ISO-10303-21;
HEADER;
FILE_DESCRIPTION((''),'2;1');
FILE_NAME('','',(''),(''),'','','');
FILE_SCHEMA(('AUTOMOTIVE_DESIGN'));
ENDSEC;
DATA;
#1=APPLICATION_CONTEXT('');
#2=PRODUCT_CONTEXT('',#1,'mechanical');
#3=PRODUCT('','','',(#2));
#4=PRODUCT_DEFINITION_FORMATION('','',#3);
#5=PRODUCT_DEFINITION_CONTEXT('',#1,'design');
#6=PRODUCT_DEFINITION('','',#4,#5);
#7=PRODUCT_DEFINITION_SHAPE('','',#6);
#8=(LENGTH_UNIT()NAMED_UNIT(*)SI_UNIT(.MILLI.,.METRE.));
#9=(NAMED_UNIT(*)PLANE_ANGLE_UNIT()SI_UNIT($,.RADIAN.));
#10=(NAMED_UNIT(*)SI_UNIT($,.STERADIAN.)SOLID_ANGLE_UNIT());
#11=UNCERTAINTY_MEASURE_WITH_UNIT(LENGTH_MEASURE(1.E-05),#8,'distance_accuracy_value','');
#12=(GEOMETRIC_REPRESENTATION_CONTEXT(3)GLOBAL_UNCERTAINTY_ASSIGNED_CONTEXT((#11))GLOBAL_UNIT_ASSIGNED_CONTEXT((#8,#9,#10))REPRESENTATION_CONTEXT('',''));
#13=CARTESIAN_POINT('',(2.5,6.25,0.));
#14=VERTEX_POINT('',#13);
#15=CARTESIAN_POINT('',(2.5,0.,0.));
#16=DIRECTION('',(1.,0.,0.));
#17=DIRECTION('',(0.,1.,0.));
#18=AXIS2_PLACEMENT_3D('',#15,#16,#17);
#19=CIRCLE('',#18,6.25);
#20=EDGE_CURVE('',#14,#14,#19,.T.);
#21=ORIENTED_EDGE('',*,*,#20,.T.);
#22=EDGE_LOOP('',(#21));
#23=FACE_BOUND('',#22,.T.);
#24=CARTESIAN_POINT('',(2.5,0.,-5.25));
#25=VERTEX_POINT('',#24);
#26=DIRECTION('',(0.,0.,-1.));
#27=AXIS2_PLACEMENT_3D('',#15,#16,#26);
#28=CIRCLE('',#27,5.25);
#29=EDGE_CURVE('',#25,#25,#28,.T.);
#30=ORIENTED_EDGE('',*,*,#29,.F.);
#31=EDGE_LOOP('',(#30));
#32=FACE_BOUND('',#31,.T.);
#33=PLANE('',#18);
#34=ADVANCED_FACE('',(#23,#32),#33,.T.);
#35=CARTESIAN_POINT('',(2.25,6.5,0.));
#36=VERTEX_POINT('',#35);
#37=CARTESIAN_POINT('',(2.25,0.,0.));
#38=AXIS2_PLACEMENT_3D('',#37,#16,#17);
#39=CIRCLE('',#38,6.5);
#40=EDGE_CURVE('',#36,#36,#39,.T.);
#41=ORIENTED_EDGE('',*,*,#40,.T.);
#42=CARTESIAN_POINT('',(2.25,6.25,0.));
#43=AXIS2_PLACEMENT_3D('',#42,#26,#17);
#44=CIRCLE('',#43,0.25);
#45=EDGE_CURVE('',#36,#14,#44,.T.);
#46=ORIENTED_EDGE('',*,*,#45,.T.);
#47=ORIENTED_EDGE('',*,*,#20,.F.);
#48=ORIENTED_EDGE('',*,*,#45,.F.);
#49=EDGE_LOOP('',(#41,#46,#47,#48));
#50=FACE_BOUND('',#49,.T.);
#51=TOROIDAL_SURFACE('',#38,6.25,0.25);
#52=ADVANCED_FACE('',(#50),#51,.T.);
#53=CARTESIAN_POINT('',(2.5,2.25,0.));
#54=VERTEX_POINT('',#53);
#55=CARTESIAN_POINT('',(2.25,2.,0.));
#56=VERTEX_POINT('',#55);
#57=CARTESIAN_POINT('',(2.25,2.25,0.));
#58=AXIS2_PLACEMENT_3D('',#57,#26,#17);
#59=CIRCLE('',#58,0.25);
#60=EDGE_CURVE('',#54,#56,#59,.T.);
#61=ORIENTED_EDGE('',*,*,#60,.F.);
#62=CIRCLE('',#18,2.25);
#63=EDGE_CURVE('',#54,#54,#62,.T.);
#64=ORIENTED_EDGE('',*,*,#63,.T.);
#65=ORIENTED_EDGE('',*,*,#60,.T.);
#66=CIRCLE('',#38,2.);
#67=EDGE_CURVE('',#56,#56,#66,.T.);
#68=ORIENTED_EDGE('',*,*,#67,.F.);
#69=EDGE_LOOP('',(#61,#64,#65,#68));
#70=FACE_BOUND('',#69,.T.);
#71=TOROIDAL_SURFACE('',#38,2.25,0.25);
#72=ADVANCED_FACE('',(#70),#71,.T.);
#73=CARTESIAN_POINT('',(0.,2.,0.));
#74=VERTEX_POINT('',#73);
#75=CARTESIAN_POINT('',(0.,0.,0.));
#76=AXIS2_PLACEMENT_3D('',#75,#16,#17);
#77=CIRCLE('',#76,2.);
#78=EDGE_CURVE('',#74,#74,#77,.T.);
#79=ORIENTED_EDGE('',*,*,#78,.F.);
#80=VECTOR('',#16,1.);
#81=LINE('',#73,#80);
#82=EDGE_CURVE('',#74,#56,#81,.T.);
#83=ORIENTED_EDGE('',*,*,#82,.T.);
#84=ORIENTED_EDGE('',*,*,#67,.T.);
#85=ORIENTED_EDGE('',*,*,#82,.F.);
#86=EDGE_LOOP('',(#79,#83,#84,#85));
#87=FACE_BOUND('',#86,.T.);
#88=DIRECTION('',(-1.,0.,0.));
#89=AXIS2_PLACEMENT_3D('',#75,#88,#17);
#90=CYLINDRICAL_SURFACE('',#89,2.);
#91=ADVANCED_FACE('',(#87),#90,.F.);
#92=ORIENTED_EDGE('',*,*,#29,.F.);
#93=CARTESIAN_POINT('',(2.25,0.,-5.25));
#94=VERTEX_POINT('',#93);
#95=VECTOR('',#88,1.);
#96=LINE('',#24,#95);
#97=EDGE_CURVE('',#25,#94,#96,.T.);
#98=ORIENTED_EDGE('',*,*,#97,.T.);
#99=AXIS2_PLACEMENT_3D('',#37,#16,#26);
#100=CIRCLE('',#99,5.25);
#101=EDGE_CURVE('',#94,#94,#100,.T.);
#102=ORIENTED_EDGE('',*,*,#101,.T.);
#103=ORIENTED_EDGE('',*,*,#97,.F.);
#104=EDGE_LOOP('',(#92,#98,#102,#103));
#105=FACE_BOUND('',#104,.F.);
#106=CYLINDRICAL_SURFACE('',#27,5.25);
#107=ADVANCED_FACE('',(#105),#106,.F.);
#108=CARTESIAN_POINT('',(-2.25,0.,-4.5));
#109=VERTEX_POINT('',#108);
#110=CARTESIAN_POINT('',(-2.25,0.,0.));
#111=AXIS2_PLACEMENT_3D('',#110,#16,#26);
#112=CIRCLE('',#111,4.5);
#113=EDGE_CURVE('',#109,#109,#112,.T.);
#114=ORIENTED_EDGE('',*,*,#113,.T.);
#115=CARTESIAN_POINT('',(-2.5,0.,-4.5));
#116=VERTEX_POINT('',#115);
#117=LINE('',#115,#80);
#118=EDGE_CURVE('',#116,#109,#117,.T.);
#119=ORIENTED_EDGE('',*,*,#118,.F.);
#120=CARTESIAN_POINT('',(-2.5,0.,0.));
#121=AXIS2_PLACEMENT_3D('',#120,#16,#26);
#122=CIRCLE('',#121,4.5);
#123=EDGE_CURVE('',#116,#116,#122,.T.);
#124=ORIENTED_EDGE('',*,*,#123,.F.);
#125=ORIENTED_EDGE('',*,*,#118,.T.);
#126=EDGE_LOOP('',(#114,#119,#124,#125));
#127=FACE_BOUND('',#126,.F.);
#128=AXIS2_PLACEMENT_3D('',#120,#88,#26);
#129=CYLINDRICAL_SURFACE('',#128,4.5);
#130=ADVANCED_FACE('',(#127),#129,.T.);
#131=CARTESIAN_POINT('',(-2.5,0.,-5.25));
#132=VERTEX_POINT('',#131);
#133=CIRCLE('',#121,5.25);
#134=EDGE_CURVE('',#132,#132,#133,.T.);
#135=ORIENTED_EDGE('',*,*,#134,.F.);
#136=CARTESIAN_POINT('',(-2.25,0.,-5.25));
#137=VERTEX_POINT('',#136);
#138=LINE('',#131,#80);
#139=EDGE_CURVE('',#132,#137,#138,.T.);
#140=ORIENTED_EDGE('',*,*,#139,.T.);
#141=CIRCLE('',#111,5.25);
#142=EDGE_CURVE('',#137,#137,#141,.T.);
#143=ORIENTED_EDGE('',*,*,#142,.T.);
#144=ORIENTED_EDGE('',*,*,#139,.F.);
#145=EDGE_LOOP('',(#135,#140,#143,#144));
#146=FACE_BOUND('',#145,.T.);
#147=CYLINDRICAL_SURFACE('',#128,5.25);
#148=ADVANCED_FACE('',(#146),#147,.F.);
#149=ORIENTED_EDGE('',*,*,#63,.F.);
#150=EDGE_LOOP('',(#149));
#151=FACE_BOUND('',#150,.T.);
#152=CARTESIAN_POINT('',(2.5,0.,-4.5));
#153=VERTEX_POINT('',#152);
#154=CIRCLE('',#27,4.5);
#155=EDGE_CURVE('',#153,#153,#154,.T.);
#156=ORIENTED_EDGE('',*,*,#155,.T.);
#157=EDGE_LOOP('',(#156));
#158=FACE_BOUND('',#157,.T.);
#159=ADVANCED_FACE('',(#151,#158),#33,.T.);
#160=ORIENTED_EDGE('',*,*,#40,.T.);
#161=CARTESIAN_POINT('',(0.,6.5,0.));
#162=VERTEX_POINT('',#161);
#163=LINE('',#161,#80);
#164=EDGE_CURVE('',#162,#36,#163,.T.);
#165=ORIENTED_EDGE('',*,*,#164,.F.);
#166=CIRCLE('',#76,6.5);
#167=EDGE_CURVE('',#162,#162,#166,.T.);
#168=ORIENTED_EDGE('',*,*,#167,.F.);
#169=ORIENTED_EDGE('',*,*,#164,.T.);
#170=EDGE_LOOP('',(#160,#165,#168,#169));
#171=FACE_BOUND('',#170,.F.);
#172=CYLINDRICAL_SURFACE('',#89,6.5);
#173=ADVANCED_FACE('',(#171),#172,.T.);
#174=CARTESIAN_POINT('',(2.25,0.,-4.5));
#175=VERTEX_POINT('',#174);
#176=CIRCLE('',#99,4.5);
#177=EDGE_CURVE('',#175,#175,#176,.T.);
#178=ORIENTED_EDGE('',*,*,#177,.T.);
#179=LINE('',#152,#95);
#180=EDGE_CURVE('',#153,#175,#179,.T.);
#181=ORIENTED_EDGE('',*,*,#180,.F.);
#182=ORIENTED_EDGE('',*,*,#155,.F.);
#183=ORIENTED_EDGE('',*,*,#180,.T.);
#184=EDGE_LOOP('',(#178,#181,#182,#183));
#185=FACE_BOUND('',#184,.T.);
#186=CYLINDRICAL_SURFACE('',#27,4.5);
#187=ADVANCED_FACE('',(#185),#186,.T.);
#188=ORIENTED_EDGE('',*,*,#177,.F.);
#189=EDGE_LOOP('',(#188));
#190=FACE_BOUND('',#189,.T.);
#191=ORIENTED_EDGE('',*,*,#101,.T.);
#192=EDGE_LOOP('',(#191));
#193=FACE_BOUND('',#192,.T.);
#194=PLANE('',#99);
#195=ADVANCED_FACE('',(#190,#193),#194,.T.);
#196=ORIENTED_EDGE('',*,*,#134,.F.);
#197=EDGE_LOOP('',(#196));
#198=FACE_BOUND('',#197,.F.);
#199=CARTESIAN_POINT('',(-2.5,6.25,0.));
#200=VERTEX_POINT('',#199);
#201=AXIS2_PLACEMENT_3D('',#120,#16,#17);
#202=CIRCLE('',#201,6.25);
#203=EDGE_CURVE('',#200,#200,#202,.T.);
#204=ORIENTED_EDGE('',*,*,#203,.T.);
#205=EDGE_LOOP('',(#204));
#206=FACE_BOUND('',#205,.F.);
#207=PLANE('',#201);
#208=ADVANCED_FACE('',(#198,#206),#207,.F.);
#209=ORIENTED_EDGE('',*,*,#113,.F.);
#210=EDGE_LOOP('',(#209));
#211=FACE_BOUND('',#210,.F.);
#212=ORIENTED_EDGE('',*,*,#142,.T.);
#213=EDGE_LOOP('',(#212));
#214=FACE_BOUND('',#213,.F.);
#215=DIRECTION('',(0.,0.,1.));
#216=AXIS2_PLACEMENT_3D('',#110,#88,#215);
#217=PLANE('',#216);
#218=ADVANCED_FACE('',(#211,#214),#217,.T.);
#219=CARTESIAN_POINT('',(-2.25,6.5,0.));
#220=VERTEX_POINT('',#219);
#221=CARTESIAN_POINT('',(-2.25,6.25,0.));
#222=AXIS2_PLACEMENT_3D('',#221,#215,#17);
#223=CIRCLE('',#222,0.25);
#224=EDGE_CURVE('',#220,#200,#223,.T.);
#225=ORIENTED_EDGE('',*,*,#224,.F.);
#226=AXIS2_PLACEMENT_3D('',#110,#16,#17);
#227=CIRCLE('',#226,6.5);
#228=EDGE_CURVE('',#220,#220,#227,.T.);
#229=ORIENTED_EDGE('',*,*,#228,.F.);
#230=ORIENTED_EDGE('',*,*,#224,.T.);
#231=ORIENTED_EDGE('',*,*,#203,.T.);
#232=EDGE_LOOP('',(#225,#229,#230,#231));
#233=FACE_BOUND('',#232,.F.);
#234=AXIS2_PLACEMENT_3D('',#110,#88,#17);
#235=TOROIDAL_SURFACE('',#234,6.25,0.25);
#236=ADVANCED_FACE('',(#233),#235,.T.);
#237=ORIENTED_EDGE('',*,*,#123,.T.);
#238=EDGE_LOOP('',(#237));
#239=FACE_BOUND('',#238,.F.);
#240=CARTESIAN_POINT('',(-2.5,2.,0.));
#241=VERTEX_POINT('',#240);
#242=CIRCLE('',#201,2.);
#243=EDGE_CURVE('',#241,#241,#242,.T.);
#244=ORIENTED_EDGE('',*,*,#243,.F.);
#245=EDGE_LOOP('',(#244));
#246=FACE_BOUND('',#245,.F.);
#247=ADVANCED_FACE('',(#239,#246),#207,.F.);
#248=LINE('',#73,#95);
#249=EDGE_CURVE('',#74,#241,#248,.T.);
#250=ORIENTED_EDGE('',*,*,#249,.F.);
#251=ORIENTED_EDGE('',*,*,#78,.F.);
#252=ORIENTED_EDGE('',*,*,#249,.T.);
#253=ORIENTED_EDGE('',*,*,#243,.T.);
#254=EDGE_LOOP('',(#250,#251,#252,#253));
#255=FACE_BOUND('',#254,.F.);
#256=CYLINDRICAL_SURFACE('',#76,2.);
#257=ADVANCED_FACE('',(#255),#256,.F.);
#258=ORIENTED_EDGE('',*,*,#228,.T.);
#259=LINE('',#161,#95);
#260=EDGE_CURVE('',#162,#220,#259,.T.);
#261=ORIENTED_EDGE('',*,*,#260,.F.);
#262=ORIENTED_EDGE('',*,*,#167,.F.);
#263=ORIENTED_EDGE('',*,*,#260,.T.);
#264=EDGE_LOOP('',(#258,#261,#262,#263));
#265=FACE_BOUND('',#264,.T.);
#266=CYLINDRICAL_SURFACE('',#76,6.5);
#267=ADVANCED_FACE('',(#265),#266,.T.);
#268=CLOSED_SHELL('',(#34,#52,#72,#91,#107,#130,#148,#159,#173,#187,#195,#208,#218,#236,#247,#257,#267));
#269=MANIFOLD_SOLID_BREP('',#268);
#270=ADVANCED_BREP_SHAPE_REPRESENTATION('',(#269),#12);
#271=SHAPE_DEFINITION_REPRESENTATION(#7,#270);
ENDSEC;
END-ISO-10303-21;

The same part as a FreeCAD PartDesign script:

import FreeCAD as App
import Part
import Sketcher

V = App.Vector
Q = App.Units.Quantity


def edges_at(feature, points):
    """Names of the edges that pass closest to the given points."""
    edges = feature.Shape.Edges
    near = lambda p: min(range(len(edges)), key=lambda i: edges[i].distToShape(Part.Vertex(*p))[0])
    return sorted({f"Edge{near(p) + 1}" for p in points})

doc = App.newDocument("Part")
body = doc.addObject("PartDesign::Body", "Body")

sketch1 = body.newObject("Sketcher::SketchObject", "Sketch")
sketch1.AttachmentSupport = (doc.getObject("YZ_Plane"), [""])
sketch1.MapMode = "FlatFace"
sketch1.addGeometry([
    Part.Circle(V(0, 0, 0), V(0, 0, 1), 6.5),
    Part.Circle(V(0, 0, 0), V(0, 0, 1), 2),
], False)
sketch1.addConstraint([
    Sketcher.Constraint("Coincident", 0, 3, -1, 1),
    Sketcher.Constraint("Coincident", 1, 3, -1, 1),
    Sketcher.Constraint("Diameter", 0, Q("13 mm")),
    Sketcher.Constraint("Diameter", 1, Q("4 mm")),
])
pad1 = body.newObject("PartDesign::Pad", "Pad")
pad1.Profile = sketch1
pad1.Length = 5
pad1.Midplane = True
doc.recompute()

fillet = body.newObject("PartDesign::Fillet", "Fillet")
fillet.Base = (pad1, edges_at(pad1, [(2.5, -6.5, 0), (-2.5, -6.5, 0)]))
fillet.Radius = 0.25
doc.recompute()

fillet2 = body.newObject("PartDesign::Fillet", "Fillet001")
fillet2.Base = (fillet, edges_at(fillet, [(2.5, -2, 0)]))
fillet2.Radius = 0.25

sketch2 = body.newObject("Sketcher::SketchObject", "Sketch001")
sketch2.AttachmentSupport = (doc.getObject("YZ_Plane"), [""])
sketch2.MapMode = "FlatFace"
sketch2.AttachmentOffset = App.Placement(V(0, 0, 2.5), App.Rotation())
sketch2.addGeometry([
    Part.Circle(V(0, 0, 0), V(0, 0, 1), 5.2),
    Part.Circle(V(0, 0, 0), V(0, 0, 1), 4.5),
], False)
sketch2.addConstraint([
    Sketcher.Constraint("Coincident", 0, 3, -1, 1),
    Sketcher.Constraint("Coincident", 1, 3, -1, 1),
    Sketcher.Constraint("Diameter", 1, Q("9 mm")),
    Sketcher.Constraint("Diameter", 0, Q("10.5 mm")),
])
pocket1 = body.newObject("PartDesign::Pocket", "Pocket")
pocket1.Profile = sketch2
pocket1.Length = 0.25
doc.recompute()

mirrored = body.newObject("PartDesign::Mirrored", "Mirrored")
mirrored.Originals = [pocket1]
mirrored.MirrorPlane = (doc.getObject("YZ_Plane"), [""])
body.Tip = mirrored

doc.recompute()
